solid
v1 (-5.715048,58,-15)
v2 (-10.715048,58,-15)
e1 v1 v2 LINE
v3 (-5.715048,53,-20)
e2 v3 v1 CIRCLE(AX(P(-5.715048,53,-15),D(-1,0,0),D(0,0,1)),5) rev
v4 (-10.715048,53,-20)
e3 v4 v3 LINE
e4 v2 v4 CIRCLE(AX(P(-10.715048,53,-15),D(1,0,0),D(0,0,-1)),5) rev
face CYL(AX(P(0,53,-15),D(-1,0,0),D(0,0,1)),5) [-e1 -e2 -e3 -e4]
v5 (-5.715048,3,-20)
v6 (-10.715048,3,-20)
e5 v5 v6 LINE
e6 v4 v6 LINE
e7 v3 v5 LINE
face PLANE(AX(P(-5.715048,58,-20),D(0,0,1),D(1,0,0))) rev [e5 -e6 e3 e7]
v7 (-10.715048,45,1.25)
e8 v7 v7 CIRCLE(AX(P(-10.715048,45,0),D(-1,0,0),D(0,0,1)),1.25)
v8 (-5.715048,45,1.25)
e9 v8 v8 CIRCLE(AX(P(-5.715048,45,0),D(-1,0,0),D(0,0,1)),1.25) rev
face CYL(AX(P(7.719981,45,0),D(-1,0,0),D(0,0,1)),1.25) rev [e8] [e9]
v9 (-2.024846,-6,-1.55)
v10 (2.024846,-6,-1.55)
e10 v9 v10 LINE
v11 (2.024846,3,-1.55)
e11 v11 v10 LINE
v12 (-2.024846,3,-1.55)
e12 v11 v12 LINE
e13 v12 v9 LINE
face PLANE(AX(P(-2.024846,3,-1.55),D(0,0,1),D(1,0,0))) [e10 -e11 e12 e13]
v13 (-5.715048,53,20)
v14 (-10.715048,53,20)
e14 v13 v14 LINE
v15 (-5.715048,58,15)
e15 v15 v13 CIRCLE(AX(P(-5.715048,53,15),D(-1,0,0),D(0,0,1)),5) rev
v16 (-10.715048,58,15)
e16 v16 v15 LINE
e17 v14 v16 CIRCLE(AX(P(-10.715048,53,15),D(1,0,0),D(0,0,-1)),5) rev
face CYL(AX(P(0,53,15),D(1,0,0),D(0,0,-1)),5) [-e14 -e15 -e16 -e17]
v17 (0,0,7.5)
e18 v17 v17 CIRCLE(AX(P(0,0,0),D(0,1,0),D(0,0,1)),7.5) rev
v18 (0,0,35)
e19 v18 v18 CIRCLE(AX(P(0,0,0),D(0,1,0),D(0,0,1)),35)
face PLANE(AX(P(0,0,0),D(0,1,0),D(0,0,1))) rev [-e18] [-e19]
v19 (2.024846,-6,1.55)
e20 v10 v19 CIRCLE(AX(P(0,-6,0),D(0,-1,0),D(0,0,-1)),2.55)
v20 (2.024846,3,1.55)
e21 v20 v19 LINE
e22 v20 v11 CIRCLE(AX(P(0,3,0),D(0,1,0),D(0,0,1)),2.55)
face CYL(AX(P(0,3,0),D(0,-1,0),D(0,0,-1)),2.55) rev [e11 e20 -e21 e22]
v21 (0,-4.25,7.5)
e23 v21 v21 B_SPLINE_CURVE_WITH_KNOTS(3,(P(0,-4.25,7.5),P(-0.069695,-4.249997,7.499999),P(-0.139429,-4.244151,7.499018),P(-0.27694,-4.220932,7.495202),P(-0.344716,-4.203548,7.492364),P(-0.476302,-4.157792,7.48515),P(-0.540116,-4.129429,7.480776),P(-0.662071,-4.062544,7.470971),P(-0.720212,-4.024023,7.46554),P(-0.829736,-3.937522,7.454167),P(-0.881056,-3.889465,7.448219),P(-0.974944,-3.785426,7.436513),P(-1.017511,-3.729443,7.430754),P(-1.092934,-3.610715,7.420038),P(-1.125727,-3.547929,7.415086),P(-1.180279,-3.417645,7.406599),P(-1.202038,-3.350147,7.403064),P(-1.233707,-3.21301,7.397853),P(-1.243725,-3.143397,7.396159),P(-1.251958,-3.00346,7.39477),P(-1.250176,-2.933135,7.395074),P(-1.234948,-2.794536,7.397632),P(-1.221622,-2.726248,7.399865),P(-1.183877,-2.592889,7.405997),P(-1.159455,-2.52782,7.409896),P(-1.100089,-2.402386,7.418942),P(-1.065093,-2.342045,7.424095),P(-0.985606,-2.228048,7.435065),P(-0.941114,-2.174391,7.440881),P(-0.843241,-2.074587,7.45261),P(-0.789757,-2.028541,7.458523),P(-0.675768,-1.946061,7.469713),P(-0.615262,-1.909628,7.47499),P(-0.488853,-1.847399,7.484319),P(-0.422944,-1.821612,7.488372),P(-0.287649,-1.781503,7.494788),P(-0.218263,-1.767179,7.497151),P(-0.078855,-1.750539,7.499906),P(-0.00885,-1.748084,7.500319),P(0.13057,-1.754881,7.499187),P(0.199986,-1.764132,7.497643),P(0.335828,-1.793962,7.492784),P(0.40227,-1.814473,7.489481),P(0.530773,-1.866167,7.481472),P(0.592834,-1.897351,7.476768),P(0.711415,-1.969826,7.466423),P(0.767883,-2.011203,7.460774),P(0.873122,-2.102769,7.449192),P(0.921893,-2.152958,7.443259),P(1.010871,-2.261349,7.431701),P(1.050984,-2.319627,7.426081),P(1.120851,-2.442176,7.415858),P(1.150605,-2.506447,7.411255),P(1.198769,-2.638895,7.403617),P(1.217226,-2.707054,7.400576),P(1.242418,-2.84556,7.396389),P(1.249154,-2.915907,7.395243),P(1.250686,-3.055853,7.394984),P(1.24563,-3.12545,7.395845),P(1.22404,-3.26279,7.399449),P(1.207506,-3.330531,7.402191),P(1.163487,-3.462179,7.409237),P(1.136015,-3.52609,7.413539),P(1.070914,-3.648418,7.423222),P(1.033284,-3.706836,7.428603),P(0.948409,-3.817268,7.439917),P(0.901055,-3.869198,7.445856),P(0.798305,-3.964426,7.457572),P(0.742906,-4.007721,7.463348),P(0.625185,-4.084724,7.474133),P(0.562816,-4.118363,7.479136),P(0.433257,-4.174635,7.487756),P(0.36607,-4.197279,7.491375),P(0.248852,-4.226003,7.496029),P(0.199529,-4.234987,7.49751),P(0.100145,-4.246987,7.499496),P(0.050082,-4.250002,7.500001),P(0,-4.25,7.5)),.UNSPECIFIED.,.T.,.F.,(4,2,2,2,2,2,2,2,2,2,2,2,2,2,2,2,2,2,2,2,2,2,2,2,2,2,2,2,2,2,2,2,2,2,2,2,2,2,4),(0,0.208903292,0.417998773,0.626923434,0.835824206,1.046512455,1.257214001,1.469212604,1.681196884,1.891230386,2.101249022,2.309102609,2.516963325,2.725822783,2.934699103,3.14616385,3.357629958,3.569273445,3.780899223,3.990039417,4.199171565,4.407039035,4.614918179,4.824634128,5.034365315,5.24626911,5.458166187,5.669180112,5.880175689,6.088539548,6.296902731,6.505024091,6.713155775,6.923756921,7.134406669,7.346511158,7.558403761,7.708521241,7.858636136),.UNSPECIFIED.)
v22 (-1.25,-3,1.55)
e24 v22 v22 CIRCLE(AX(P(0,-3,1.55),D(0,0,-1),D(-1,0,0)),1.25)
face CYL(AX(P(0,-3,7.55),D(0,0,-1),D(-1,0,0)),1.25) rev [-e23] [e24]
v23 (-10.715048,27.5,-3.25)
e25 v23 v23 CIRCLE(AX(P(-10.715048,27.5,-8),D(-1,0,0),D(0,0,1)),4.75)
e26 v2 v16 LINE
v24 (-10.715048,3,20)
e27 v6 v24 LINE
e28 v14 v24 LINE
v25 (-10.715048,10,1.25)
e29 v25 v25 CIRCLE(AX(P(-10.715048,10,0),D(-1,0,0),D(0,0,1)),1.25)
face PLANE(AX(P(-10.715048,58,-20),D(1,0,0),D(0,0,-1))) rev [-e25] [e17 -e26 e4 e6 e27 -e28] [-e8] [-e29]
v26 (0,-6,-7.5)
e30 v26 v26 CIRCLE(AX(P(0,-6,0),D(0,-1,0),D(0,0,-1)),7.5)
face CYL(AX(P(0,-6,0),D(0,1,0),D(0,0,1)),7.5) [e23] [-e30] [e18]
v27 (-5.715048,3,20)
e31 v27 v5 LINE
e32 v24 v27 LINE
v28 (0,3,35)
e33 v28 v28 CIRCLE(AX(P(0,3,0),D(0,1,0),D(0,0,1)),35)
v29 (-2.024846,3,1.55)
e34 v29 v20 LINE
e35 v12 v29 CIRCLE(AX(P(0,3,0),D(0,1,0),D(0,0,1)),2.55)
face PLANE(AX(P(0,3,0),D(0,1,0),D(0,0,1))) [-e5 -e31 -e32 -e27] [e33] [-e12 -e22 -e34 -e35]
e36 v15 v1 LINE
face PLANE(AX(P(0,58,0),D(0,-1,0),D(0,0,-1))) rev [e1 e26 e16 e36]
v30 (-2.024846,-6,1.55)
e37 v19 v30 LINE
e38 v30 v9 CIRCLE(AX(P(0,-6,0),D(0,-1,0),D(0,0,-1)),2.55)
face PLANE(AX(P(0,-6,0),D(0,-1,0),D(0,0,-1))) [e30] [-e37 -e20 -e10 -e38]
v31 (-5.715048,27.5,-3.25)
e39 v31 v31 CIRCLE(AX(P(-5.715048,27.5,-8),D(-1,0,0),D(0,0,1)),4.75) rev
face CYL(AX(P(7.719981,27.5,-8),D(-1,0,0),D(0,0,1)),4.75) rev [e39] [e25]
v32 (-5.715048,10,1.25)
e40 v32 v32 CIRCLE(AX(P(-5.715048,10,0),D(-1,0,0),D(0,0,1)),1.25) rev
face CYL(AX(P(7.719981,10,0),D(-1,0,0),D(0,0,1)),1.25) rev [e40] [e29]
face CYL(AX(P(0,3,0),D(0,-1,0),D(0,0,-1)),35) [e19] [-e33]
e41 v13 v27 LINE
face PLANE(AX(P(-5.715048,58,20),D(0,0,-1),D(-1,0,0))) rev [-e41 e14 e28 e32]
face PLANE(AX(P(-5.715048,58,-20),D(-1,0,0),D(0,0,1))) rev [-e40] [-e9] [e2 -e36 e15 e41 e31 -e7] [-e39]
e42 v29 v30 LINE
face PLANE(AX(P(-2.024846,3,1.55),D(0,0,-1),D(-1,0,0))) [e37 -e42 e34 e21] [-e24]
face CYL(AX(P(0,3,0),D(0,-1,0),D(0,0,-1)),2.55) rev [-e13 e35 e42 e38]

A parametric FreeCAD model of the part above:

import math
import FreeCAD as App
import Part
import Sketcher
from FreeCAD import Vector


def edges_at(feature, points):
    """Names of the edges that pass closest to the given points."""
    edges = feature.Shape.Edges
    near = lambda p: min(range(len(edges)), key=lambda i: edges[i].distToShape(Part.Vertex(*p))[0])
    return sorted({f"Edge{near(p) + 1}" for p in points})


def add_polygon(sketch, points):
    """Adds a closed chain of lines whose ends are joined by coincident constraints."""
    first, n = sketch.GeometryCount, len(points)
    for a, b in zip(points, points[1:] + points[:1]):
        sketch.addGeometry(Part.LineSegment(App.Vector(*a, 0), App.Vector(*b, 0)), False)
    for i in range(n):
        sketch.addConstraint(Sketcher.Constraint("Coincident", first + i, 2, first + (i + 1) % n, 1))

doc = App.newDocument("Part")
body = doc.addObject("PartDesign::Body", "Body")

sketch1 = doc.addObject("Sketcher::SketchObject", "Sketch")
body.addObject(sketch1)
sketch1.AttachmentSupport = (doc.XZ_Plane, [""])
sketch1.MapMode = "FlatFace"
sketch1.addGeometry([
    Part.Circle(Vector(0, 0, 0), Vector(0, 0, 1), 35),
    Part.ArcOfCircle(Part.Circle(Vector(0, 0, 0), Vector(0, 0, 1), 2.5), math.radians(143), math.radians(217)),
    Part.LineSegment(Vector(-2, -1.6, 0), Vector(2, -1.6, 0)),
    Part.ArcOfCircle(Part.Circle(Vector(0, 0, 0), Vector(0, 0, 1), 2.5), math.radians(-37), math.radians(37)),
    Part.LineSegment(Vector(2, 1.6, 0), Vector(-2, 1.6, 0)),
], False)
sketch1.addConstraint([
    Sketcher.Constraint("Coincident", 1, 2, 2, 1),
    Sketcher.Constraint("Coincident", 2, 2, 3, 1),
    Sketcher.Constraint("Coincident", 3, 2, 4, 1),
    Sketcher.Constraint("Coincident", 4, 2, 1, 1),
    Sketcher.Constraint("Horizontal", 2),
    Sketcher.Constraint("Horizontal", 4),
    Sketcher.Constraint("Coincident", 0, 3, -1, 1),
    Sketcher.Constraint("Coincident", 1, 3, -1, 1),
    Sketcher.Constraint("Coincident", 3, 3, -1, 1),
    Sketcher.Constraint("Equal", 1, 3),
    Sketcher.Constraint("Vertical", 2, 2, 3, 2),
    Sketcher.Constraint("Diameter", 0, 70.0),
    Sketcher.Constraint("Radius", 1, 2.55),
    Sketcher.Constraint("DistanceY", 2, 2, 3, 2, 3.1),
])
pad1 = doc.addObject("PartDesign::Pad", "Pad")
body.addObject(pad1)
pad1.Profile = sketch1
pad1.Length = 3
pad1.Reversed = True

sketch2 = doc.addObject("Sketcher::SketchObject", "Sketch001")
body.addObject(sketch2)
sketch2.AttachmentSupport = (doc.XZ_Plane, [""])
sketch2.MapMode = "FlatFace"
sketch2.AttachmentOffset = App.Placement(Vector(0, 0, 6), App.Rotation())
sketch2.addGeometry([
    Part.Circle(Vector(0, 0, 0), Vector(0, 0, 1), 7.5),
    Part.ArcOfCircle(Part.Circle(Vector(0, 0, 0), Vector(0, 0, 1), 2.5), math.radians(143), math.radians(217)),
    Part.LineSegment(Vector(-2, 1.6, 0), Vector(2, 1.6, 0)),
    Part.ArcOfCircle(Part.Circle(Vector(0, 0, 0), Vector(0, 0, 1), 2.5), math.radians(-37), math.radians(37)),
    Part.LineSegment(Vector(2, -1.6, 0), Vector(-2, -1.6, 0)),
], False)
sketch2.addConstraint([
    Sketcher.Constraint("Coincident", 1, 1, 2, 1),
    Sketcher.Constraint("Coincident", 2, 2, 3, 2),
    Sketcher.Constraint("Coincident", 3, 1, 4, 1),
    Sketcher.Constraint("Coincident", 4, 2, 1, 2),
    Sketcher.Constraint("Horizontal", 2),
    Sketcher.Constraint("Horizontal", 4),
    Sketcher.Constraint("Coincident", 0, 3, -1, 1),
    Sketcher.Constraint("Coincident", 1, 3, -1, 1),
    Sketcher.Constraint("Coincident", 3, 3, -1, 1),
    Sketcher.Constraint("Equal", 1, 3),
    Sketcher.Constraint("Vertical", 2, 2, 3, 1),
    Sketcher.Constraint("Diameter", 0, 15.0),
    Sketcher.Constraint("Radius", 1, 2.55),
    Sketcher.Constraint("DistanceY", 3, 1, 2, 2, 3.1),
])
pad2 = doc.addObject("PartDesign::Pad", "Pad001")
body.addObject(pad2)
pad2.Profile = sketch2
pad2.Length = 6
pad2.Reversed = True

sketch3 = doc.addObject("Sketcher::SketchObject", "Sketch002")
body.addObject(sketch3)
sketch3.AttachmentSupport = (doc.XY_Plane, [""])
sketch3.MapMode = "FlatFace"
sketch3.AttachmentOffset = App.Placement(Vector(0, 0, 1.55), App.Rotation())
sketch3.addGeometry(Part.Circle(Vector(0, -3, 0), Vector(0, 0, 1), 1.2), False)
sketch3.addConstraint([
    Sketcher.Constraint("PointOnObject", 0, 3, -2),
    Sketcher.Constraint("Diameter", 0, 2.5),
    Sketcher.Constraint("DistanceY", 0, 3, -1, 1, 3.0),
])
pocket1 = doc.addObject("PartDesign::Pocket", "Pocket")
body.addObject(pocket1)
pocket1.Profile = sketch3
pocket1.Length = 6
pocket1.Reversed = True

sketch4 = doc.addObject("Sketcher::SketchObject", "Sketch003")
body.addObject(sketch4)
sketch4.AttachmentSupport = (doc.XZ_Plane, [""])
sketch4.MapMode = "FlatFace"
sketch4.AttachmentOffset = App.Placement(Vector(0, 0, -3), App.Rotation())
add_polygon(sketch4, [(-10.7, -20), (-10.7, 20), (-5.7, 20), (-5.7, -20)])
sketch4.addConstraint([
    Sketcher.Constraint("Vertical", 0),
    Sketcher.Constraint("Horizontal", 1),
    Sketcher.Constraint("Vertical", 2),
    Sketcher.Constraint("Horizontal", 3),
    Sketcher.Constraint("DistanceX", 1, 1, 1, 2, 5.0),
    Sketcher.Constraint("DistanceY", 0, 1, 0, 2, 40.0),
    Sketcher.Constraint("DistanceY", -1, 1, 0, 2, 20.0),
    Sketcher.Constraint("DistanceX", 0, 2, -1, 1, 10.715048),
])
pad3 = doc.addObject("PartDesign::Pad", "Pad002")
body.addObject(pad3)
pad3.Profile = sketch4
pad3.Length = 55
pad3.Reversed = True

sketch5 = doc.addObject("Sketcher::SketchObject", "Sketch004")
body.addObject(sketch5)
sketch5.AttachmentSupport = (doc.YZ_Plane, [""])
sketch5.MapMode = "FlatFace"
sketch5.AttachmentOffset = App.Placement(Vector(0, 0, -10.715048), App.Rotation())
sketch5.addGeometry([
    Part.Circle(Vector(45, 0, 0), Vector(0, 0, 1), 1.2),
    Part.Circle(Vector(10, 0, 0), Vector(0, 0, 1), 1.2),
    Part.Circle(Vector(27.5, -8, 0), Vector(0, 0, 1), 4.8),
], False)
sketch5.addConstraint([
    Sketcher.Constraint("Equal", 0, 1),
    Sketcher.Constraint("PointOnObject", 0, 3, -1),
    Sketcher.Constraint("PointOnObject", 1, 3, -1),
    Sketcher.Constraint("Diameter", 0, 2.5),
    Sketcher.Constraint("Diameter", 2, 9.5),
    Sketcher.Constraint("DistanceX", -1, 1, 0, 3, 45.0),
    Sketcher.Constraint("DistanceX", -1, 1, 1, 3, 10.0),
    Sketcher.Constraint("DistanceY", 2, 3, -1, 1, 8.0),
    Sketcher.Constraint("DistanceX", -1, 1, 2, 3, 27.5),
])
pocket2 = doc.addObject("PartDesign::Pocket", "Pocket001")
body.addObject(pocket2)
pocket2.Profile = sketch5
pocket2.Length = 5
pocket2.Reversed = True
doc.recompute()

fillet = doc.addObject("PartDesign::Fillet", "Fillet")
body.addObject(fillet)
fillet.Base = (pocket2, edges_at(pocket2, [(-8.215, 58, -20), (-8.215, 58, 20)]))
fillet.Radius = 5

doc.recompute()
